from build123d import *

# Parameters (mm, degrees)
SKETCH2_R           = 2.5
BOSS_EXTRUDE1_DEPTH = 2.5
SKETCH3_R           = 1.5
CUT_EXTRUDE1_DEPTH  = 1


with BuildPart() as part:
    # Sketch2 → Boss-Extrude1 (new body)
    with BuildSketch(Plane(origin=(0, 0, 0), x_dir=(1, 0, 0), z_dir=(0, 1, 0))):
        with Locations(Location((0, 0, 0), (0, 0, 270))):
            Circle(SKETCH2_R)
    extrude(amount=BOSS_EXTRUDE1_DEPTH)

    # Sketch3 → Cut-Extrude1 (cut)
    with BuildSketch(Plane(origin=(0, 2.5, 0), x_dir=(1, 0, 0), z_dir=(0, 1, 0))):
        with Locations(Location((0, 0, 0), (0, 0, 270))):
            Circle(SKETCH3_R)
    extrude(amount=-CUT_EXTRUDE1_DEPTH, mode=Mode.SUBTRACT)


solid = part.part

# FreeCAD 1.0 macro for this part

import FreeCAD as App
import Part
import Sketcher

doc = App.newDocument("Part")
params = doc.addObject("Spreadsheet::Sheet", "Params")
for row, (alias, value) in enumerate([
    ("sketch1_diameter", "5 mm"),
    ("pad1_length", "2.5 mm"),
    ("sketch2_diameter", "3 mm"),
    ("pocket1_length", "1 mm"),
], start=1):
    params.set(f"A{row}", alias)
    params.set(f"B{row}", "=" + value)
    params.setAlias(f"B{row}", alias)

body = doc.addObject("PartDesign::Body", "Body")

sketch1 = body.newObject("Sketcher::SketchObject", "Sketch")
sketch1.AttachmentSupport = (doc.getObject("XZ_Plane"), [""])
sketch1.MapMode = "FlatFace"
sketch1.addGeometry(Part.Circle(App.Vector(0, 0, 0), App.Vector(0, 0, 1), 2.5), False)
sketch1.addConstraint([
    Sketcher.Constraint("Coincident", 0, 3, -1, 1),
    Sketcher.Constraint("Diameter", 0, 5.0),
])
sketch1.setExpression("Constraints[1]", "Params.sketch1_diameter")
pad1 = body.newObject("PartDesign::Pad", "Pad")
pad1.Profile = sketch1
pad1.setExpression("Length", "Params.pad1_length")
pad1.Reversed = True

sketch2 = body.newObject("Sketcher::SketchObject", "Sketch001")
sketch2.AttachmentSupport = (doc.getObject("XZ_Plane"), [""])
sketch2.MapMode = "FlatFace"
sketch2.AttachmentOffset = App.Placement(App.Vector(0, 0, -2.5), App.Rotation())
sketch2.addGeometry(Part.Circle(App.Vector(0, 0, 0), App.Vector(0, 0, 1), 1.5), False)
sketch2.addConstraint([
    Sketcher.Constraint("Coincident", 0, 3, -1, 1),
    Sketcher.Constraint("Diameter", 0, 3.0),
])
sketch2.setExpression("Constraints[1]", "Params.sketch2_diameter")
pocket1 = body.newObject("PartDesign::Pocket", "Pocket")
pocket1.Profile = sketch2
pocket1.setExpression("Length", "Params.pocket1_length")
pocket1.Reversed = True

doc.recompute()
